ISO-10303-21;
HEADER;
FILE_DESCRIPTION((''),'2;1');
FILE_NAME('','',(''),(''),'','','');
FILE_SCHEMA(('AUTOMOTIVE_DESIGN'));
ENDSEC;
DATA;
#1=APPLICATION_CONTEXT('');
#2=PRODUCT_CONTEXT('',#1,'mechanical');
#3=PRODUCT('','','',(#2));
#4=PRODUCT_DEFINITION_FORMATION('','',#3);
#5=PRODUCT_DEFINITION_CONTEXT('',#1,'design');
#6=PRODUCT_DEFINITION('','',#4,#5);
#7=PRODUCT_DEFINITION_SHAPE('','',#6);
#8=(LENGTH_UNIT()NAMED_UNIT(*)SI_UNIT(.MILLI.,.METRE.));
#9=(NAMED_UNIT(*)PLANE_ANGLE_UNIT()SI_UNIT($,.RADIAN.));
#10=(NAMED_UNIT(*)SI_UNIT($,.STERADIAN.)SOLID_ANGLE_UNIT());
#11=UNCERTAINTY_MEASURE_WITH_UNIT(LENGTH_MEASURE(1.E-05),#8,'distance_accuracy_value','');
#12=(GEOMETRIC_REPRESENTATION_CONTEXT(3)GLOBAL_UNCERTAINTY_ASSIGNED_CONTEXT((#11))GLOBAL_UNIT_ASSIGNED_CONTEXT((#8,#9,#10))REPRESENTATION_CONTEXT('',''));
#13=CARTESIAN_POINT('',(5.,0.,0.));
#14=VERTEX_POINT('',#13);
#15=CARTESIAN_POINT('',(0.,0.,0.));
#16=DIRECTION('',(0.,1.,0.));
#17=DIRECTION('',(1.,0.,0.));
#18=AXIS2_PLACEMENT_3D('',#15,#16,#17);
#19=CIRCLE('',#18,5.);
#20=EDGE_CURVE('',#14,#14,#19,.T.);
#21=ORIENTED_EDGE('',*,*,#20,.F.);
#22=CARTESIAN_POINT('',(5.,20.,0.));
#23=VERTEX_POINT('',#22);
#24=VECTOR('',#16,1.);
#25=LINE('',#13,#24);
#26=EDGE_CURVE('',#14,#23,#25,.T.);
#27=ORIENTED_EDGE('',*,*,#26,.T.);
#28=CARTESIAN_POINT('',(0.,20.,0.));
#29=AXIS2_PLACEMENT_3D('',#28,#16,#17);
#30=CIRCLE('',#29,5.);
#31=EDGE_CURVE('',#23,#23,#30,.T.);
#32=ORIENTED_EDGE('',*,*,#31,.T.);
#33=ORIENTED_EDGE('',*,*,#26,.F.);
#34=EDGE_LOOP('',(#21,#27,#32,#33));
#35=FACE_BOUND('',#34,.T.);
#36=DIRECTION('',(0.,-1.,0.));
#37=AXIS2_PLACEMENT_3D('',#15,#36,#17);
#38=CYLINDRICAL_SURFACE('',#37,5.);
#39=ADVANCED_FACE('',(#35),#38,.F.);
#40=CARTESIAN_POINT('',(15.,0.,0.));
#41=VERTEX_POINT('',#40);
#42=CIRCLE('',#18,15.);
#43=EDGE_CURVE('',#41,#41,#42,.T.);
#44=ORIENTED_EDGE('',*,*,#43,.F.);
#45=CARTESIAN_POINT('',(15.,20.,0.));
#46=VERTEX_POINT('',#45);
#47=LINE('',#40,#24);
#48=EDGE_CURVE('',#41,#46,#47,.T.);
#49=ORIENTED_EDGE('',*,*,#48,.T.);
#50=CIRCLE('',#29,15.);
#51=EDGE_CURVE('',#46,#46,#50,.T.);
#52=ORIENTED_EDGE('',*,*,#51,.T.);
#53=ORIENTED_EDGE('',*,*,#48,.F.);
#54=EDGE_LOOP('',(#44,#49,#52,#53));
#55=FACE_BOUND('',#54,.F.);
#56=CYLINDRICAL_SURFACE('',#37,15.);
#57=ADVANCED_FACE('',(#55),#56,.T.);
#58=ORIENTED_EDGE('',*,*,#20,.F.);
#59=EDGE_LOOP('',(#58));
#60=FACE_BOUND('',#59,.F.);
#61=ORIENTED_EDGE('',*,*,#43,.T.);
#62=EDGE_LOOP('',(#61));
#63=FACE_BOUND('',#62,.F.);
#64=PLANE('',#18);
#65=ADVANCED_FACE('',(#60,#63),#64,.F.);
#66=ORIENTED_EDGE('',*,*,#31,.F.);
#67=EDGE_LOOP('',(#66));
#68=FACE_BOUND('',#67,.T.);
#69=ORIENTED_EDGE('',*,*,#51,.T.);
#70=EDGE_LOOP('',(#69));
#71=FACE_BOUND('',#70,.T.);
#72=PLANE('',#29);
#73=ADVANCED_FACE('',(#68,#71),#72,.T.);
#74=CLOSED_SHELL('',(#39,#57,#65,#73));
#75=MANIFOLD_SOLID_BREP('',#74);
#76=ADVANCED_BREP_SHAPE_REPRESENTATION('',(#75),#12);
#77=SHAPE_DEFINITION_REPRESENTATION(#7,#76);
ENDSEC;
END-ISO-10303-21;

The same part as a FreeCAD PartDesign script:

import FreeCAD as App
import Part
import Sketcher

V = App.Vector

doc = App.newDocument("Part")
params = doc.addObject("Spreadsheet::Sheet", "Params")
for row, (alias, value) in enumerate([
    ("sketch1_diameter", "30 mm"),
    ("sketch1_diameter2", "10 mm"),
    ("pad1_length", "20 mm"),
], start=1):
    params.set(f"A{row}", alias)
    params.set(f"B{row}", "=" + value)
    params.setAlias(f"B{row}", alias)

body = doc.addObject("PartDesign::Body", "Body")

# Sketch on XZ plane
sketch1 = doc.addObject("Sketcher::SketchObject", "Sketch")
body.addObject(sketch1)
sketch1.AttachmentSupport = (doc.XZ_Plane, [""])
sketch1.MapMode = "FlatFace"
sketch1.addGeometry([
    Part.Circle(V(0, 0, 0), V(0, 0, 1), 15),
    Part.Circle(V(0, 0, 0), V(0, 0, 1), 5),
], False)
sketch1.addConstraint([
    Sketcher.Constraint("Coincident", 0, 3, -1, 1),
    Sketcher.Constraint("Coincident", 1, 3, -1, 1),
    Sketcher.Constraint("Diameter", 0, 30.0),
    Sketcher.Constraint("Diameter", 1, 10.0),
])
sketch1.setExpression("Constraints[2]", "Params.sketch1_diameter")
sketch1.setExpression("Constraints[3]", "Params.sketch1_diameter2")
pad1 = doc.addObject("PartDesign::Pad", "Pad")
body.addObject(pad1)
pad1.Profile = sketch1
pad1.setExpression("Length", "Params.pad1_length")
pad1.Reversed = True

doc.recompute()
